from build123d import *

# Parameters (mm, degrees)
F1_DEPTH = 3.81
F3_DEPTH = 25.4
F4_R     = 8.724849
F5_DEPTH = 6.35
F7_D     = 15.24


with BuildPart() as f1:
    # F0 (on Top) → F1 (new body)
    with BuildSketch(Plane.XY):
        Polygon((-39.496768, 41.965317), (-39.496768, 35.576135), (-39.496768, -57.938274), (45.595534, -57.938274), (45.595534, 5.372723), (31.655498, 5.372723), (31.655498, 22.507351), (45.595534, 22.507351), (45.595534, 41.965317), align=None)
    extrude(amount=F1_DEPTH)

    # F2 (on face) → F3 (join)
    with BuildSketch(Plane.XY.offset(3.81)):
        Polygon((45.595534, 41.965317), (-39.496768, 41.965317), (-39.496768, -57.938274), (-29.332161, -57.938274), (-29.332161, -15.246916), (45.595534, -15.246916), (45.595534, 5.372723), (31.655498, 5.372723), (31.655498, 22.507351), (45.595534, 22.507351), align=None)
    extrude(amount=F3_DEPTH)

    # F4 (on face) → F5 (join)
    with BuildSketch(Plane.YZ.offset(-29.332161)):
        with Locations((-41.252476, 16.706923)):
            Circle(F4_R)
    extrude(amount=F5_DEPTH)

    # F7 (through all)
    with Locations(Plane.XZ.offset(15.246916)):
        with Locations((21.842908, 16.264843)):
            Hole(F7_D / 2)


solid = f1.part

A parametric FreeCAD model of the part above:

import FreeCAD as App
import Part
import Sketcher

V = App.Vector
Q = App.Units.Quantity

doc = App.newDocument("Part")
body = doc.addObject("PartDesign::Body", "Body")

sketch1 = doc.addObject("Sketcher::SketchObject", "Sketch")
body.addObject(sketch1)
sketch1.AttachmentSupport = (doc.XY_Plane, [""])
sketch1.MapMode = "FlatFace"
sketch1.addGeometry(Part.LineSegment(V(-39, 42, 0), V(-39, -58, 0)), False)
sketch1.addGeometry(Part.LineSegment(V(-39, -58, 0), V(46, -58, 0)), False)
sketch1.addGeometry(Part.LineSegment(V(46, -58, 0), V(46, 5, 0)), False)
sketch1.addGeometry(Part.LineSegment(V(46, 5, 0), V(32, 5, 0)), False)
sketch1.addGeometry(Part.LineSegment(V(32, 5, 0), V(32, 23, 0)), False)
sketch1.addGeometry(Part.LineSegment(V(32, 23, 0), V(46, 23, 0)), False)
sketch1.addGeometry(Part.LineSegment(V(46, 23, 0), V(46, 42, 0)), False)
sketch1.addGeometry(Part.LineSegment(V(46, 42, 0), V(-39, 42, 0)), False)
sketch1.addConstraint(Sketcher.Constraint("Coincident", 0, 2, 1, 1))
sketch1.addConstraint(Sketcher.Constraint("Coincident", 1, 2, 2, 1))
sketch1.addConstraint(Sketcher.Constraint("Coincident", 2, 2, 3, 1))
sketch1.addConstraint(Sketcher.Constraint("Coincident", 3, 2, 4, 1))
sketch1.addConstraint(Sketcher.Constraint("Coincident", 4, 2, 5, 1))
sketch1.addConstraint(Sketcher.Constraint("Coincident", 5, 2, 6, 1))
sketch1.addConstraint(Sketcher.Constraint("Coincident", 6, 2, 7, 1))
sketch1.addConstraint(Sketcher.Constraint("Coincident", 7, 2, 0, 1))
sketch1.addConstraint(Sketcher.Constraint("Vertical", 0))
sketch1.addConstraint(Sketcher.Constraint("Horizontal", 1))
sketch1.addConstraint(Sketcher.Constraint("Vertical", 2))
sketch1.addConstraint(Sketcher.Constraint("Horizontal", 3))
sketch1.addConstraint(Sketcher.Constraint("Vertical", 4))
sketch1.addConstraint(Sketcher.Constraint("Horizontal", 5))
sketch1.addConstraint(Sketcher.Constraint("Vertical", 6))
sketch1.addConstraint(Sketcher.Constraint("Horizontal", 7))
sketch1.addConstraint(Sketcher.Constraint("Vertical", 2, 2, 5, 2))
sketch1.addConstraint(Sketcher.Constraint("DistanceY", 0, 2, 0, 1, 99.903591))
sketch1.addConstraint(Sketcher.Constraint("DistanceX", -1, 1, 3, 2, 31.655498))
sketch1.addConstraint(Sketcher.Constraint("DistanceX", 1, 1, 1, 2, 85.092302))
sketch1.addConstraint(Sketcher.Constraint("DistanceX", 3, 2, 3, 1, 13.940036))
sketch1.addConstraint(Sketcher.Constraint("DistanceY", 2, 1, 2, 2, 63.310997))
sketch1.addConstraint(Sketcher.Constraint("DistanceY", 4, 1, 4, 2, 17.134628))
sketch1.addConstraint(Sketcher.Constraint("DistanceY", -1, 1, 4, 2, 22.507351))
pad1 = doc.addObject("PartDesign::Pad", "Pad")
body.addObject(pad1)
pad1.Profile = sketch1
pad1.Length = Q("0.15 in")

sketch2 = doc.addObject("Sketcher::SketchObject", "Sketch001")
body.addObject(sketch2)
sketch2.AttachmentSupport = (doc.XY_Plane, [""])
sketch2.MapMode = "FlatFace"
sketch2.AttachmentOffset = App.Placement(V(0, 0, 0.15 * 25.4), App.Rotation())
sketch2.addGeometry(Part.LineSegment(V(46, 42, 0), V(-39, 42, 0)), False)
sketch2.addGeometry(Part.LineSegment(V(-39, 42, 0), V(-39, -58, 0)), False)
sketch2.addGeometry(Part.LineSegment(V(-39, -58, 0), V(-29, -58, 0)), False)
sketch2.addGeometry(Part.LineSegment(V(-29, -58, 0), V(-29, -15, 0)), False)
sketch2.addGeometry(Part.LineSegment(V(-29, -15, 0), V(46, -15, 0)), False)
sketch2.addGeometry(Part.LineSegment(V(46, -15, 0), V(46, 5, 0)), False)
sketch2.addGeometry(Part.LineSegment(V(46, 5, 0), V(32, 5, 0)), False)
sketch2.addGeometry(Part.LineSegment(V(32, 5, 0), V(32, 23, 0)), False)
sketch2.addGeometry(Part.LineSegment(V(32, 23, 0), V(46, 23, 0)), False)
sketch2.addGeometry(Part.LineSegment(V(46, 23, 0), V(46, 42, 0)), False)
sketch2.addConstraint(Sketcher.Constraint("Coincident", 0, 2, 1, 1))
sketch2.addConstraint(Sketcher.Constraint("Coincident", 1, 2, 2, 1))
sketch2.addConstraint(Sketcher.Constraint("Coincident", 2, 2, 3, 1))
sketch2.addConstraint(Sketcher.Constraint("Coincident", 3, 2, 4, 1))
sketch2.addConstraint(Sketcher.Constraint("Coincident", 4, 2, 5, 1))
sketch2.addConstraint(Sketcher.Constraint("Coincident", 5, 2, 6, 1))
sketch2.addConstraint(Sketcher.Constraint("Coincident", 6, 2, 7, 1))
sketch2.addConstraint(Sketcher.Constraint("Coincident", 7, 2, 8, 1))
sketch2.addConstraint(Sketcher.Constraint("Coincident", 8, 2, 9, 1))
sketch2.addConstraint(Sketcher.Constraint("Coincident", 9, 2, 0, 1))
sketch2.addConstraint(Sketcher.Constraint("Horizontal", 0))
sketch2.addConstraint(Sketcher.Constraint("Vertical", 1))
sketch2.addConstraint(Sketcher.Constraint("Horizontal", 2))
sketch2.addConstraint(Sketcher.Constraint("Vertical", 3))
sketch2.addConstraint(Sketcher.Constraint("Horizontal", 4))
sketch2.addConstraint(Sketcher.Constraint("Vertical", 5))
sketch2.addConstraint(Sketcher.Constraint("Horizontal", 6))
sketch2.addConstraint(Sketcher.Constraint("Vertical", 7))
sketch2.addConstraint(Sketcher.Constraint("Horizontal", 8))
sketch2.addConstraint(Sketcher.Constraint("Vertical", 9))
sketch2.addConstraint(Sketcher.Constraint("Vertical", 5, 2, 8, 2))
sketch2.addConstraint(Sketcher.Constraint("DistanceY", 1, 2, 1, 1, 99.903591))
sketch2.addConstraint(Sketcher.Constraint("DistanceY", 5, 1, 5, 2, 20.619639))
sketch2.addConstraint(Sketcher.Constraint("DistanceX", -1, 1, 6, 2, 31.655498))
sketch2.addConstraint(Sketcher.Constraint("DistanceX", 0, 2, 0, 1, 85.092302))
sketch2.addConstraint(Sketcher.Constraint("DistanceX", 2, 1, 2, 2, 10.164607))
sketch2.addConstraint(Sketcher.Constraint("DistanceX", 6, 2, 6, 1, 13.940036))
sketch2.addConstraint(Sketcher.Constraint("DistanceY", 3, 1, 3, 2, 42.691358))
sketch2.addConstraint(Sketcher.Constraint("DistanceY", 7, 1, 7, 2, 17.134628))
sketch2.addConstraint(Sketcher.Constraint("DistanceY", -1, 1, 7, 2, 22.507351))
pad2 = doc.addObject("PartDesign::Pad", "Pad001")
body.addObject(pad2)
pad2.Profile = sketch2
pad2.Length = Q("1 in")

sketch3 = doc.addObject("Sketcher::SketchObject", "Sketch002")
body.addObject(sketch3)
sketch3.AttachmentSupport = (doc.YZ_Plane, [""])
sketch3.MapMode = "FlatFace"
sketch3.AttachmentOffset = App.Placement(V(0, 0, -29.332161), App.Rotation())
sketch3.addGeometry(Part.Circle(V(-41, 17, 0), V(0, 0, 1), 9), False)
sketch3.addConstraint(Sketcher.Constraint("Diameter", 0, 17.449698))
sketch3.addConstraint(Sketcher.Constraint("DistanceX", 0, 3, -1, 1, 41.252476))
sketch3.addConstraint(Sketcher.Constraint("DistanceY", -1, 1, 0, 3, 16.706923))
pad3 = doc.addObject("PartDesign::Pad", "Pad002")
body.addObject(pad3)
pad3.Profile = sketch3
pad3.Length = Q("0.25 in")

sketch4 = doc.addObject("Sketcher::SketchObject", "Sketch003")
body.addObject(sketch4)
sketch4.AttachmentSupport = (doc.XZ_Plane, [""])
sketch4.MapMode = "FlatFace"
sketch4.AttachmentOffset = App.Placement(V(0, 0, 15.246916), App.Rotation())
sketch4.addGeometry(Part.Circle(V(22, 16, 0), V(0, 0, 1), 8), False)
sketch4.addConstraint(Sketcher.Constraint("Diameter", 0, Q("0.6 in")))
sketch4.addConstraint(Sketcher.Constraint("DistanceX", -1, 1, 0, 3, 21.842908))
sketch4.addConstraint(Sketcher.Constraint("DistanceY", -1, 1, 0, 3, 16.264843))
doc.recompute()
hole = doc.addObject("PartDesign::Hole", "Hole")
body.addObject(hole)
hole.Profile = sketch4
hole.ThreadType = "None"
hole.Diameter = Q("0.6 in")
hole.DepthType = "ThroughAll"

doc.recompute()
